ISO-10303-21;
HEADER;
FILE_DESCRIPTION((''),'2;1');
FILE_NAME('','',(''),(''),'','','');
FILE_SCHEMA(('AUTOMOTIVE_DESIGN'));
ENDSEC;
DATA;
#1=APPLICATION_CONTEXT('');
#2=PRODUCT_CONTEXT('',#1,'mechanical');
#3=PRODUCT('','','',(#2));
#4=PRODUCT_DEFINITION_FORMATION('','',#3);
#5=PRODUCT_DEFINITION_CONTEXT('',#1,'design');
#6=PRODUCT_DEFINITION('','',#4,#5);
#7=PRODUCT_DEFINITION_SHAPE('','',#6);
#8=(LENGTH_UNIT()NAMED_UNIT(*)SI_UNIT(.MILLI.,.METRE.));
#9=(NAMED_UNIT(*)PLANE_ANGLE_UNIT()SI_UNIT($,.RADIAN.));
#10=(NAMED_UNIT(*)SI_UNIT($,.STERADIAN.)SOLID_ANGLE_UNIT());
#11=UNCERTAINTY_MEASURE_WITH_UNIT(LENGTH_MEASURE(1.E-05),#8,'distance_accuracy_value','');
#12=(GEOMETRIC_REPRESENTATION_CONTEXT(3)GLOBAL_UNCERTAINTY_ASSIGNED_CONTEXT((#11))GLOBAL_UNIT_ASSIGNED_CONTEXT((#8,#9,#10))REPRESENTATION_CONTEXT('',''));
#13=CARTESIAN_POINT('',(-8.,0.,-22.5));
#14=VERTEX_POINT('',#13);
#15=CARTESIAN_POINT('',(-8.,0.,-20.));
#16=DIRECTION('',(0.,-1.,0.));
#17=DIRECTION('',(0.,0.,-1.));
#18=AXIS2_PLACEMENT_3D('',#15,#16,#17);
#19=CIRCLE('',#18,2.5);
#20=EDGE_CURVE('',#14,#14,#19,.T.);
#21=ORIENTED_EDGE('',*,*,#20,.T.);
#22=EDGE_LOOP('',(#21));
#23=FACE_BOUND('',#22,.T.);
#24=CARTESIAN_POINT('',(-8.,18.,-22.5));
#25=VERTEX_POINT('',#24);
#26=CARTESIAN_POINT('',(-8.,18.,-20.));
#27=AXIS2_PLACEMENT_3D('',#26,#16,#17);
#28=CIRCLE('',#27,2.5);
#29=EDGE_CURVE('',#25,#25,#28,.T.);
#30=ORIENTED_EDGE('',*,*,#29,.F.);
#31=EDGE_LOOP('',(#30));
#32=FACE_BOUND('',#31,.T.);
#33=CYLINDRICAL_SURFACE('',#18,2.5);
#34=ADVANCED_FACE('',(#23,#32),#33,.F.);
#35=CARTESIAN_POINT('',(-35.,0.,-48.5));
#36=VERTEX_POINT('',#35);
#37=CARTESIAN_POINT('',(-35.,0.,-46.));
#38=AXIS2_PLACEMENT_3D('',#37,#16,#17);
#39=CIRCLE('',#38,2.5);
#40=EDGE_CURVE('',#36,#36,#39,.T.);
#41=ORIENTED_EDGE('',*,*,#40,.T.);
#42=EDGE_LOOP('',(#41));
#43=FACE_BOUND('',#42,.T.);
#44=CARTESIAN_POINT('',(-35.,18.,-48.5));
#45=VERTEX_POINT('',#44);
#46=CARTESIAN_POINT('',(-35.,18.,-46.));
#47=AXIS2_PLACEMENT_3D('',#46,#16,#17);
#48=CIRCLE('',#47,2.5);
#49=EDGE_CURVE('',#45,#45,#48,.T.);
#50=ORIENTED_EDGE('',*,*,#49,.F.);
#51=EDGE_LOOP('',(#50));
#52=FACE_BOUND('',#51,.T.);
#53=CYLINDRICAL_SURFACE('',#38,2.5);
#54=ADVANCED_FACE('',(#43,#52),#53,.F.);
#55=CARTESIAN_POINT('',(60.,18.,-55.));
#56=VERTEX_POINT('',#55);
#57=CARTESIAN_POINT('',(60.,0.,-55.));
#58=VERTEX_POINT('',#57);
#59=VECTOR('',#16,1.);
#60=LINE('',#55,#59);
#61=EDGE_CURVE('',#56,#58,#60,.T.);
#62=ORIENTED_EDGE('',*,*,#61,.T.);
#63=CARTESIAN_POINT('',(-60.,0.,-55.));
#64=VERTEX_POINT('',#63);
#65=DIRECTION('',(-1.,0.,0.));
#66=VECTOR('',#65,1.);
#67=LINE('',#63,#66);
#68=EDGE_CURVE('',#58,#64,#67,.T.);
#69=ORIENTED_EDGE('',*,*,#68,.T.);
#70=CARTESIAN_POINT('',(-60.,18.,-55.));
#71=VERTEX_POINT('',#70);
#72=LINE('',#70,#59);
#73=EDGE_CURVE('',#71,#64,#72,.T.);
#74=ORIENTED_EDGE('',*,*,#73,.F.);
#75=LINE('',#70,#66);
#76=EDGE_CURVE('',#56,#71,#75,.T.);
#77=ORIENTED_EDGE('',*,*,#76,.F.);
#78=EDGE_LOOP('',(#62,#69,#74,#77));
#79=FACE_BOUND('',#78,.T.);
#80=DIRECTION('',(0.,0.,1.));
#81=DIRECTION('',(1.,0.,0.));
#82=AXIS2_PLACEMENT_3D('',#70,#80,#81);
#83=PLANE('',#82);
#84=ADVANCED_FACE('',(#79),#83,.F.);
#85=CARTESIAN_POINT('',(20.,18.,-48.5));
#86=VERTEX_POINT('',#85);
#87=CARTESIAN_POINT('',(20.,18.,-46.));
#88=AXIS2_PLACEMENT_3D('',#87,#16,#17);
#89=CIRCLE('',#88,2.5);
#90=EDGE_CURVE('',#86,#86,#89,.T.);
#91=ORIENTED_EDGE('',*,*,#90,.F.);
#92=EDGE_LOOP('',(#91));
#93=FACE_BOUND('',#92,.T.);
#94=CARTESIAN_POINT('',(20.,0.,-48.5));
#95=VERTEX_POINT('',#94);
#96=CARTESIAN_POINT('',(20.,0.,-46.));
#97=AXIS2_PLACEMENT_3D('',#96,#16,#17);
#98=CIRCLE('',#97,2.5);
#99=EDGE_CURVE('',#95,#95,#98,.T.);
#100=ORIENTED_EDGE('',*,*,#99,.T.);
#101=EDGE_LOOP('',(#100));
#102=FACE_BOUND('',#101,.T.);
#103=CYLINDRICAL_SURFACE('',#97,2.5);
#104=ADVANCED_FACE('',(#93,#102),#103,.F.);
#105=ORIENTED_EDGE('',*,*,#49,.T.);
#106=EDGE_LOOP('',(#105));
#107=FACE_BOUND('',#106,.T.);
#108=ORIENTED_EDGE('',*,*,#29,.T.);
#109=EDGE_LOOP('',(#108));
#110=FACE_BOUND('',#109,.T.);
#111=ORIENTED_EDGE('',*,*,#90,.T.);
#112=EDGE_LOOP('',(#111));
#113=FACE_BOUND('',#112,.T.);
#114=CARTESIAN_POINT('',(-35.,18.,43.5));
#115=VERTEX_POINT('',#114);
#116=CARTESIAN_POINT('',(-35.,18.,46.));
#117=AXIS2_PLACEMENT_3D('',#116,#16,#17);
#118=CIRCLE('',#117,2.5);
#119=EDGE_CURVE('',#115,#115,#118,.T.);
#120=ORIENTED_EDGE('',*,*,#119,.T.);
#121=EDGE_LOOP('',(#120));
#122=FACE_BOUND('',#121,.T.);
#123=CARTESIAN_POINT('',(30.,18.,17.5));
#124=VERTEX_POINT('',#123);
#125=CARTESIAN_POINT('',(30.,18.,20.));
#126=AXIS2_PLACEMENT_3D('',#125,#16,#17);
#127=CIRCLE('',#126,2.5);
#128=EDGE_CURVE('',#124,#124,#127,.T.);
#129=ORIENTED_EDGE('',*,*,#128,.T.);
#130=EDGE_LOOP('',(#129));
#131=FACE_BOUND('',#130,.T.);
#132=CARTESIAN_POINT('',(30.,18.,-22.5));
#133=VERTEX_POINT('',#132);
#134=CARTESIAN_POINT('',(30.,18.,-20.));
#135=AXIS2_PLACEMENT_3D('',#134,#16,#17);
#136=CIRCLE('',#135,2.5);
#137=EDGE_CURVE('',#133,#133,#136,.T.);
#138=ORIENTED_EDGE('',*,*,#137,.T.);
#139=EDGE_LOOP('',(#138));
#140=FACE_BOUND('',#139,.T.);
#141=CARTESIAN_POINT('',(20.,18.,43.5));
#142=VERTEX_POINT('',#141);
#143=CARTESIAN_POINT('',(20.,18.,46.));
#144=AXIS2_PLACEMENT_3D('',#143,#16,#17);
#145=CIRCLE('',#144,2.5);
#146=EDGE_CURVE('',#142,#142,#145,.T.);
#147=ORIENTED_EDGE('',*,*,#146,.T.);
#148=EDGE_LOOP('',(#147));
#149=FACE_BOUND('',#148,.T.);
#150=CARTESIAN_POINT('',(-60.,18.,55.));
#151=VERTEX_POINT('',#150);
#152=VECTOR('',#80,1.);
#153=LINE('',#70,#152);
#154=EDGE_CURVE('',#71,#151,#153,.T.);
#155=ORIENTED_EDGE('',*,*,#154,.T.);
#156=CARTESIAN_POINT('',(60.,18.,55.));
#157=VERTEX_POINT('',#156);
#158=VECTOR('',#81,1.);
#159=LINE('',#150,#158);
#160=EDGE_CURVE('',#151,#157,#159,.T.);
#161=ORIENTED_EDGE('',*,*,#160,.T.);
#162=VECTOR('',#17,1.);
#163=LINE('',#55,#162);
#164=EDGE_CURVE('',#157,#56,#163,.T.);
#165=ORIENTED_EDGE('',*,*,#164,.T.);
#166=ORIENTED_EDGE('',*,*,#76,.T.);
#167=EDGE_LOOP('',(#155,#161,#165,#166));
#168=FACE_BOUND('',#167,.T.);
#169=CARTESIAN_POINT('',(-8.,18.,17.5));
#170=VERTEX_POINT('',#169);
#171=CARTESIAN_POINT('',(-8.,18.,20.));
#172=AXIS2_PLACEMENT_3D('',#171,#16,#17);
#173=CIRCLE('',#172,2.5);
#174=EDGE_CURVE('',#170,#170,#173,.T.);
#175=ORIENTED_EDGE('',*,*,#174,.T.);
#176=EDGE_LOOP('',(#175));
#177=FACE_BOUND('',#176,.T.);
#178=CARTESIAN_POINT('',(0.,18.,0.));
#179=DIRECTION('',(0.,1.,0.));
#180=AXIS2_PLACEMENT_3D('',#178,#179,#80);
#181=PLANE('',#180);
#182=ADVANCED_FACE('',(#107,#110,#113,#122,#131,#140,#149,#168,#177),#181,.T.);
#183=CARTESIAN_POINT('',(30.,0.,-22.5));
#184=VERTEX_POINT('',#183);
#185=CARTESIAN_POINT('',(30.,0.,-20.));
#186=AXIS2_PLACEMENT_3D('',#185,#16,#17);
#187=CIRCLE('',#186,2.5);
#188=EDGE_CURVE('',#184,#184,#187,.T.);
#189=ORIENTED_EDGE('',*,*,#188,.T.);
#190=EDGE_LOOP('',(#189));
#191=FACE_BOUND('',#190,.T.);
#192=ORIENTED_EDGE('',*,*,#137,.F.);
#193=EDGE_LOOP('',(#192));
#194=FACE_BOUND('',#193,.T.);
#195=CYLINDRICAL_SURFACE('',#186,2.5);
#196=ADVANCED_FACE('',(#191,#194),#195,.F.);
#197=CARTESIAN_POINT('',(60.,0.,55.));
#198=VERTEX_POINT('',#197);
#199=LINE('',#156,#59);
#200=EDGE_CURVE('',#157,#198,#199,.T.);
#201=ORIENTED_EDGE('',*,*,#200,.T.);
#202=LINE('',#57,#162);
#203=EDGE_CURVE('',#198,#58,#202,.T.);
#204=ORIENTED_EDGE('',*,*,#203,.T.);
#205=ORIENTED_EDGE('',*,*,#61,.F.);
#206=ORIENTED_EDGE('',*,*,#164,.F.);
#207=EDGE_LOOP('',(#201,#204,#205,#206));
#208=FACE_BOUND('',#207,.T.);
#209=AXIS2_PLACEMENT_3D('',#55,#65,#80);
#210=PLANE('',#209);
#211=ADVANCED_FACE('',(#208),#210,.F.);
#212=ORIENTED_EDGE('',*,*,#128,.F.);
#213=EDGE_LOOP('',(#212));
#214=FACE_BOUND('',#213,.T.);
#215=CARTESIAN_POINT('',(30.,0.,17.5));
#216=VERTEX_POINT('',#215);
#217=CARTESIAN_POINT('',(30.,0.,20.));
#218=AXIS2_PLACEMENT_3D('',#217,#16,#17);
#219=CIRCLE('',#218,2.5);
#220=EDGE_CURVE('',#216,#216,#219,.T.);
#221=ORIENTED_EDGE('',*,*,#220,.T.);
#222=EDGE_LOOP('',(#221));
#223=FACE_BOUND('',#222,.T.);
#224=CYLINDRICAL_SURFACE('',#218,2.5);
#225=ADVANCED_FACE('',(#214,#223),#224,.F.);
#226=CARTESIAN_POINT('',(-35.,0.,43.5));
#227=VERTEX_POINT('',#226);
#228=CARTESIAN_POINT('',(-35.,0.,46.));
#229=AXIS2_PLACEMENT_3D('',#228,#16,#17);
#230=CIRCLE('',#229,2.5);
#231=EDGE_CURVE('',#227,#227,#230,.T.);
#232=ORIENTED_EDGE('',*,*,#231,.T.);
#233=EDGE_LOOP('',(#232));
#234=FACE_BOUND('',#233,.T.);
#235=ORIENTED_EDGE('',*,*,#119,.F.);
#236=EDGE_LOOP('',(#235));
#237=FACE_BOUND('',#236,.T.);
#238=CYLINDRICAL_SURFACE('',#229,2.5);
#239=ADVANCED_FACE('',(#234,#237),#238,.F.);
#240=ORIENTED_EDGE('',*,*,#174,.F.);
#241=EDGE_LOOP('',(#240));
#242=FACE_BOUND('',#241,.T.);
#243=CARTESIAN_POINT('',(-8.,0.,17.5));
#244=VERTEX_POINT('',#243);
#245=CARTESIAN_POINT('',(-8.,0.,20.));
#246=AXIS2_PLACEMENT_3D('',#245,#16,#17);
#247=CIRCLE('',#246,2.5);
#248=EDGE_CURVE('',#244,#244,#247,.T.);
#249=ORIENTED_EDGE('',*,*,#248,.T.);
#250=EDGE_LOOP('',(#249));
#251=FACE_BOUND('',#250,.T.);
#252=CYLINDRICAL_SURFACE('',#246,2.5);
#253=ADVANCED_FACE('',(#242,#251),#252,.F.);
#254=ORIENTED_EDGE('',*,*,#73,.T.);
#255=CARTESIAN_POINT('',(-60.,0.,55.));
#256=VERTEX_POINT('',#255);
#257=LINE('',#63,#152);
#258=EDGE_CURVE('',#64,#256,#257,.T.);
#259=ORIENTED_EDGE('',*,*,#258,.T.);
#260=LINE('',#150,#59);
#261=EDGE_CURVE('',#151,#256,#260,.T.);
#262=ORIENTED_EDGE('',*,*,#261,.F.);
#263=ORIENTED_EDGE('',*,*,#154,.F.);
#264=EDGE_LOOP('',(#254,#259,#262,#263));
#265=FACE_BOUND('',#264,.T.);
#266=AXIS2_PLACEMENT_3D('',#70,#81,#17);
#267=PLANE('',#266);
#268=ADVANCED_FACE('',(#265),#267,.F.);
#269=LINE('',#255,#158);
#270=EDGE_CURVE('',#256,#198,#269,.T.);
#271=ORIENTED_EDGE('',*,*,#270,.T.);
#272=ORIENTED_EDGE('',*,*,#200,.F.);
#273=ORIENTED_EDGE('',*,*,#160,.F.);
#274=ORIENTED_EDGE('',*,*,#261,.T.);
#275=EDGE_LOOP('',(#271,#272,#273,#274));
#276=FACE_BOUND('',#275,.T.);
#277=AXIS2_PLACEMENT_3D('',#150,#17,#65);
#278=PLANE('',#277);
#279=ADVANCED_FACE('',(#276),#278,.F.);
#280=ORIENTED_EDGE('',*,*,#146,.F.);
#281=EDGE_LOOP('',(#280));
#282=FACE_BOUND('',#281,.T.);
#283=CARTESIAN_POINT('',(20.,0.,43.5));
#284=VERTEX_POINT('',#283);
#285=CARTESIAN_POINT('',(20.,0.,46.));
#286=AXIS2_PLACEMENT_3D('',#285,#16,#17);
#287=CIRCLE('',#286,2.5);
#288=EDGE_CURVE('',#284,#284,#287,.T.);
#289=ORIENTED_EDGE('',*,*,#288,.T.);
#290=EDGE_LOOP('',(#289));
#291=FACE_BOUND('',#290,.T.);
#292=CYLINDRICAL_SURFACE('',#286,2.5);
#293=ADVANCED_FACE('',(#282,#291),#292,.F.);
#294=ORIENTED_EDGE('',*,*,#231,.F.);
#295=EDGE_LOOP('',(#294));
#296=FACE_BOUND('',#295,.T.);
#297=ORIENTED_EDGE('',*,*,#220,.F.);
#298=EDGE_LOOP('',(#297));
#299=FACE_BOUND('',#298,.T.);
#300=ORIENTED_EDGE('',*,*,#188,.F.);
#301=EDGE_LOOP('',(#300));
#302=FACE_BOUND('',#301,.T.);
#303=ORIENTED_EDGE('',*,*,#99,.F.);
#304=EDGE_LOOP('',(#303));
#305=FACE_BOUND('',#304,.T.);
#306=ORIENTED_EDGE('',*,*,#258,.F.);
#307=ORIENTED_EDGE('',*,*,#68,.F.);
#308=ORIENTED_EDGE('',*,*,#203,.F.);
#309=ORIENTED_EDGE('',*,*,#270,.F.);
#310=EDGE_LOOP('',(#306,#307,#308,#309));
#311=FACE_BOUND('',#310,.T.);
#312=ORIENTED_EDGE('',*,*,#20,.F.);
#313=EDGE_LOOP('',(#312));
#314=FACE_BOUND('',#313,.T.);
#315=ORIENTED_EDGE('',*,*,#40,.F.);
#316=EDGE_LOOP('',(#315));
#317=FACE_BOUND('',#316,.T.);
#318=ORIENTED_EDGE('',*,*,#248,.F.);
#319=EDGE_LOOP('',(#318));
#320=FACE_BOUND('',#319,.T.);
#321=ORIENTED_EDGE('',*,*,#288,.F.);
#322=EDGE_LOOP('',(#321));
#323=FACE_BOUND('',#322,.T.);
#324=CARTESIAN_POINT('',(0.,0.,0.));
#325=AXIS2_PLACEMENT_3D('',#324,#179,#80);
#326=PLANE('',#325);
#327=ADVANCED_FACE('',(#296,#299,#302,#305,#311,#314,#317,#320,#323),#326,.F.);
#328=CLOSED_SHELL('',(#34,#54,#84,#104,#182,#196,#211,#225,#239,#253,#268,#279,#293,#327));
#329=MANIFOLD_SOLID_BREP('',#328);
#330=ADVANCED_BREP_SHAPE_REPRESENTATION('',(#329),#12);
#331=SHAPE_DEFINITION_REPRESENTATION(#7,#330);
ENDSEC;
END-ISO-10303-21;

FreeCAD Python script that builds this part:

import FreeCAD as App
import Part
import Sketcher


def add_polygon(sketch, points):
    """Adds a closed chain of lines whose ends are joined by coincident constraints."""
    first, n = sketch.GeometryCount, len(points)
    for a, b in zip(points, points[1:] + points[:1]):
        sketch.addGeometry(Part.LineSegment(App.Vector(*a, 0), App.Vector(*b, 0)), False)
    for i in range(n):
        sketch.addConstraint(Sketcher.Constraint("Coincident", first + i, 2, first + (i + 1) % n, 1))

doc = App.newDocument("Part")
params = doc.addObject("Spreadsheet::Sheet", "Params")
for row, (alias, value) in enumerate([
    ("sketch1_width", "120 mm"),
    ("sketch1_height", "110 mm"),
    ("pad1_length", "18 mm"),
    ("sketch2_diameter", "5 mm"),
    ("hole_diameter", "5 mm"),
    ("sketch3_diameter", "5 mm"),
    ("hole2_diameter", "5 mm"),
], start=1):
    params.set(f"A{row}", alias)
    params.set(f"B{row}", "=" + value)
    params.setAlias(f"B{row}", alias)

body = doc.addObject("PartDesign::Body", "Body")

sketch1 = body.newObject("Sketcher::SketchObject", "Sketch")
sketch1.AttachmentSupport = (doc.getObject("XZ_Plane"), [""])
sketch1.MapMode = "FlatFace"
add_polygon(sketch1, [(-60, -55), (-60, 55), (60, 55), (60, -55)])
sketch1.addConstraint([
    Sketcher.Constraint("Vertical", 0),
    Sketcher.Constraint("Horizontal", 1),
    Sketcher.Constraint("Vertical", 2),
    Sketcher.Constraint("Horizontal", 3),
    Sketcher.Constraint("Symmetric", 0, 2, 2, 2, -1, 1),
    Sketcher.Constraint("DistanceX", 1, 1, 1, 2, 120.0),
    Sketcher.Constraint("DistanceY", 0, 1, 0, 2, 110.0),
])
sketch1.setExpression("Constraints[9]", "Params.sketch1_width")
sketch1.setExpression("Constraints[10]", "Params.sketch1_height")
pad1 = body.newObject("PartDesign::Pad", "Pad")
pad1.Profile = sketch1
pad1.setExpression("Length", "Params.pad1_length")
pad1.Reversed = True

sketch2 = body.newObject("Sketcher::SketchObject", "Sketch001")
sketch2.AttachmentSupport = (doc.getObject("XZ_Plane"), [""])
sketch2.MapMode = "FlatFace"
sketch2.addGeometry([
    Part.Circle(App.Vector(20, -46, 0), App.Vector(0, 0, 1), 2.5),
    Part.Circle(App.Vector(-35, -46, 0), App.Vector(0, 0, 1), 2.5),
    Part.Circle(App.Vector(-35, 46, 0), App.Vector(0, 0, 1), 2.5),
    Part.Circle(App.Vector(20, 46, 0), App.Vector(0, 0, 1), 2.5),
], False)
sketch2.addConstraint([
    Sketcher.Constraint("Equal", 0, 1),
    Sketcher.Constraint("Equal", 1, 2),
    Sketcher.Constraint("Equal", 2, 3),
    Sketcher.Constraint("Symmetric", 1, 3, 2, 3, -1),
    Sketcher.Constraint("Symmetric", 0, 3, 3, 3, -1),
    Sketcher.Constraint("Horizontal", 0, 3, 1, 3),
    Sketcher.Constraint("Diameter", 0, 5.0),
    Sketcher.Constraint("DistanceX", -1, 1, 0, 3, 20.0),
    Sketcher.Constraint("DistanceY", 0, 3, -1, 1, 46.0),
    Sketcher.Constraint("DistanceX", 1, 3, -1, 1, 35.0),
])
sketch2.setExpression("Constraints[6]", "Params.sketch2_diameter")
doc.recompute()
hole = body.newObject("PartDesign::Hole", "Hole")
hole.Profile = sketch2
hole.ThreadType = "None"
hole.setExpression("Diameter", "Params.hole_diameter")
hole.DepthType = "ThroughAll"

sketch3 = body.newObject("Sketcher::SketchObject", "Sketch002")
sketch3.AttachmentSupport = (doc.getObject("XZ_Plane"), [""])
sketch3.MapMode = "FlatFace"
sketch3.addGeometry([
    Part.Circle(App.Vector(-8, -20, 0), App.Vector(0, 0, 1), 2.5),
    Part.Circle(App.Vector(30, -20, 0), App.Vector(0, 0, 1), 2.5),
    Part.Circle(App.Vector(30, 20, 0), App.Vector(0, 0, 1), 2.5),
    Part.Circle(App.Vector(-8, 20, 0), App.Vector(0, 0, 1), 2.5),
], False)
sketch3.addConstraint([
    Sketcher.Constraint("Equal", 0, 1),
    Sketcher.Constraint("Equal", 1, 2),
    Sketcher.Constraint("Equal", 2, 3),
    Sketcher.Constraint("Symmetric", 1, 3, 2, 3, -1),
    Sketcher.Constraint("Symmetric", 0, 3, 3, 3, -1),
    Sketcher.Constraint("Horizontal", 0, 3, 1, 3),
    Sketcher.Constraint("Diameter", 0, 5.0),
    Sketcher.Constraint("DistanceX", 0, 3, -1, 1, 8.0),
    Sketcher.Constraint("DistanceY", 0, 3, -1, 1, 20.0),
    Sketcher.Constraint("DistanceX", -1, 1, 1, 3, 30.0),
])
sketch3.setExpression("Constraints[6]", "Params.sketch3_diameter")
doc.recompute()
hole2 = body.newObject("PartDesign::Hole", "Hole001")
hole2.Profile = sketch3
hole2.ThreadType = "None"
hole2.setExpression("Diameter", "Params.hole2_diameter")
hole2.DepthType = "ThroughAll"

doc.recompute()
